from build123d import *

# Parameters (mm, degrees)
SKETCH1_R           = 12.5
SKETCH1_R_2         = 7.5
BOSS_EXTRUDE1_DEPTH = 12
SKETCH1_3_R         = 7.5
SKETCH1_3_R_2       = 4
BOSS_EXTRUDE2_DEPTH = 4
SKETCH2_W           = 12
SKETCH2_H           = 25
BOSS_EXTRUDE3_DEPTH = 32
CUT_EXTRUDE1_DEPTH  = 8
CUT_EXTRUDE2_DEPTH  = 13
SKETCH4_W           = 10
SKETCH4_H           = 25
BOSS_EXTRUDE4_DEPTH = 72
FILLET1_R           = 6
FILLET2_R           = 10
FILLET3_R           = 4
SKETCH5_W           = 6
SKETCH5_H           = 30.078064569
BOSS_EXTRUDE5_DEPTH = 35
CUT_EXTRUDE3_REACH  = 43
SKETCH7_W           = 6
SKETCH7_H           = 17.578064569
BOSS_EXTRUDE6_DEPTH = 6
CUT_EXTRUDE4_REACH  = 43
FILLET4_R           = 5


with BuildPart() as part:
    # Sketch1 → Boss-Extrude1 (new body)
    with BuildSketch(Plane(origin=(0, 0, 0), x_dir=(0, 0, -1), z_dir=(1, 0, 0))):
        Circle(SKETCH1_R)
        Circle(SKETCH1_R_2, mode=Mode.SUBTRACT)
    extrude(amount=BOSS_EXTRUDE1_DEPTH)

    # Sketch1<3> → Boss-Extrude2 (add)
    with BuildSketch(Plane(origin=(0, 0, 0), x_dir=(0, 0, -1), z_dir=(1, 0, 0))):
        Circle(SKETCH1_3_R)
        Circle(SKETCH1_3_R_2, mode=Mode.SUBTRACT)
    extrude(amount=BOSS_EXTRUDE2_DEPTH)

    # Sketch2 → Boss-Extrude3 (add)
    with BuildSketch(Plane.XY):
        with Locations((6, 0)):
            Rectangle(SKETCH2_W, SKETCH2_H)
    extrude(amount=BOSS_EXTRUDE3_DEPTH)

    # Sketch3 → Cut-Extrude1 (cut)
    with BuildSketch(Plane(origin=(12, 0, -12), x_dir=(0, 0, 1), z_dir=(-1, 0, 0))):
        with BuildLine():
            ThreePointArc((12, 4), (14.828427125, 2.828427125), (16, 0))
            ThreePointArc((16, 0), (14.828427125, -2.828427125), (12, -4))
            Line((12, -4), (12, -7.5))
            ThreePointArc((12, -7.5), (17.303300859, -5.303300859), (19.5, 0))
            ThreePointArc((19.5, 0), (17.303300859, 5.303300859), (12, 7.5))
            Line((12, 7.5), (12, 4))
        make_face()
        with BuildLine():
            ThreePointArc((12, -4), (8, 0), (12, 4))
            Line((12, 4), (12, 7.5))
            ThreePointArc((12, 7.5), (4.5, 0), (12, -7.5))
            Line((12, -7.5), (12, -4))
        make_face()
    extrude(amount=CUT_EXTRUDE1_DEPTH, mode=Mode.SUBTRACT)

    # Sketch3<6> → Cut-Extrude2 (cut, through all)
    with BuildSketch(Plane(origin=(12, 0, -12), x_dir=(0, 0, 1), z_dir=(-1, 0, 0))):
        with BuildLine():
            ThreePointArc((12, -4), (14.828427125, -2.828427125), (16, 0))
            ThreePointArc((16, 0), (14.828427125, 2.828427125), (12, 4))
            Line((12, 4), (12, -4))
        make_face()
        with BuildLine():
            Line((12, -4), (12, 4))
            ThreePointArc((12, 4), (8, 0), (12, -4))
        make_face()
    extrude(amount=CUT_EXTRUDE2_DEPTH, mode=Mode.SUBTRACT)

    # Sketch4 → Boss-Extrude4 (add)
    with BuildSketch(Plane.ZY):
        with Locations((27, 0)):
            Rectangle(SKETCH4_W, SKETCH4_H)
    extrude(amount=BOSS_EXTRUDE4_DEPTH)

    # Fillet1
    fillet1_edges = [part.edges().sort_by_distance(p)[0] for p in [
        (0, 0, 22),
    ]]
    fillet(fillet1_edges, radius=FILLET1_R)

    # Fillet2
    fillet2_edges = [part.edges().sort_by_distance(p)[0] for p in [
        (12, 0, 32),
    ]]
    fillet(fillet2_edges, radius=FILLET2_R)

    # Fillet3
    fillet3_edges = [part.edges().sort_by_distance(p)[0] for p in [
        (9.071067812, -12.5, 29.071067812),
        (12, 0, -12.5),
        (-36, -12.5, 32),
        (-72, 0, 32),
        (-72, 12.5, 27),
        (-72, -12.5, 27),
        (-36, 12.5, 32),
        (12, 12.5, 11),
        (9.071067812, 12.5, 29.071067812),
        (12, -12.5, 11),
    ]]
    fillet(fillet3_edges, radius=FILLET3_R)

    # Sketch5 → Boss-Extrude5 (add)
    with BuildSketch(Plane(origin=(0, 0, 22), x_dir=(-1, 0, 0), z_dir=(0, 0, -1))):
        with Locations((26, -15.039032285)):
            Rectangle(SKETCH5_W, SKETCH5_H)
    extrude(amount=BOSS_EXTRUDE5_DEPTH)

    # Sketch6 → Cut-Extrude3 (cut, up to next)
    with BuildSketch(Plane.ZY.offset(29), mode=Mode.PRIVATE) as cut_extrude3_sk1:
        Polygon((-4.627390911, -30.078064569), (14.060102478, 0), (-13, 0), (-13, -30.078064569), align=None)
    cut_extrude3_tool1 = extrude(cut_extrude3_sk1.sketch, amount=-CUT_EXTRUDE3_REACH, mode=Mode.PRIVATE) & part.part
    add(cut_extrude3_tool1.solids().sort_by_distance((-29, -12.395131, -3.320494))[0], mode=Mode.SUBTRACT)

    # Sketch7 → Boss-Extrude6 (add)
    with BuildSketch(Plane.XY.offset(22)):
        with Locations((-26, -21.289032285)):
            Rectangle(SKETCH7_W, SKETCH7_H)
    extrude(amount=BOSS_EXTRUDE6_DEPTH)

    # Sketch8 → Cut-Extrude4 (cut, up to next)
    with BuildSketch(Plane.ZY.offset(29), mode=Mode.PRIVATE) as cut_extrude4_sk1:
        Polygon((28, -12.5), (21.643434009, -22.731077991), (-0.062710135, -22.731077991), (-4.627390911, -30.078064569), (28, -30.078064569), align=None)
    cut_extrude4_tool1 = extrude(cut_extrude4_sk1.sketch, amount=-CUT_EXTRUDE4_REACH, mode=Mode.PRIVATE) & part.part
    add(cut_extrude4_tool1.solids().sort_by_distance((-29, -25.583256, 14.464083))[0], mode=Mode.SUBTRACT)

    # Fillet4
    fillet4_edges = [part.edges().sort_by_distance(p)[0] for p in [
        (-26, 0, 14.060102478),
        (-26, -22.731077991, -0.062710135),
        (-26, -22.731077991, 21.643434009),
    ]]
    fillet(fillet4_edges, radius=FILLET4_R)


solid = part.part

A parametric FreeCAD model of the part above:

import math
import FreeCAD as App
import Part
import Sketcher

V = App.Vector


def edges_at(feature, points):
    """Names of the edges that pass closest to the given points."""
    edges = feature.Shape.Edges
    near = lambda p: min(range(len(edges)), key=lambda i: edges[i].distToShape(Part.Vertex(*p))[0])
    return sorted({f"Edge{near(p) + 1}" for p in points})


def add_polygon(sketch, points):
    """Adds a closed chain of lines whose ends are joined by coincident constraints."""
    first, n = sketch.GeometryCount, len(points)
    for a, b in zip(points, points[1:] + points[:1]):
        sketch.addGeometry(Part.LineSegment(App.Vector(*a, 0), App.Vector(*b, 0)), False)
    for i in range(n):
        sketch.addConstraint(Sketcher.Constraint("Coincident", first + i, 2, first + (i + 1) % n, 1))

doc = App.newDocument("Part")
body = doc.addObject("PartDesign::Body", "Body")

# Sketch on YZ plane
sketch1 = body.newObject("Sketcher::SketchObject", "Sketch")
sketch1.AttachmentSupport = (doc.getObject("YZ_Plane"), [""])
sketch1.MapMode = "FlatFace"
sketch1.addGeometry([
    Part.Circle(V(0, 0, 0), V(0, 0, 1), 12),
    Part.Circle(V(0, 0, 0), V(0, 0, 1), 8),
], False)
sketch1.addConstraint([
    Sketcher.Constraint("Coincident", 0, 3, -1, 1),
    Sketcher.Constraint("Coincident", 1, 3, -1, 1),
    Sketcher.Constraint("Diameter", 0, 25.0),
    Sketcher.Constraint("Diameter", 1, 15.0),
])
pad1 = body.newObject("PartDesign::Pad", "Pad")
pad1.Profile = sketch1
pad1.Length = 12

# Sketch on YZ plane
sketch2 = body.newObject("Sketcher::SketchObject", "Sketch001")
sketch2.AttachmentSupport = (doc.getObject("YZ_Plane"), [""])
sketch2.MapMode = "FlatFace"
sketch2.addGeometry([
    Part.Circle(V(0, 0, 0), V(0, 0, 1), 7.5),
    Part.Circle(V(0, 0, 0), V(0, 0, 1), 4),
], False)
sketch2.addConstraint([
    Sketcher.Constraint("Coincident", 0, 3, -1, 1),
    Sketcher.Constraint("Coincident", 1, 3, -1, 1),
    Sketcher.Constraint("Diameter", 0, 15.0),
    Sketcher.Constraint("Diameter", 1, 8.0),
])
pad2 = body.newObject("PartDesign::Pad", "Pad001")
pad2.Profile = sketch2
pad2.Length = 4

# Sketch on XY plane
sketch3 = body.newObject("Sketcher::SketchObject", "Sketch002")
sketch3.AttachmentSupport = (doc.getObject("XY_Plane"), [""])
sketch3.MapMode = "FlatFace"
add_polygon(sketch3, [(0, 12), (0, -12), (12, -12), (12, 12)])  # lines 0-3
sketch3.addConstraint([
    Sketcher.Constraint("Vertical", 0),
    Sketcher.Constraint("Horizontal", 1),
    Sketcher.Constraint("Vertical", 2),
    Sketcher.Constraint("Horizontal", 3),
    Sketcher.Constraint("Symmetric", 0, 2, 3, 2, -1, 1),
    Sketcher.Constraint("DistanceX", 1, 1, 1, 2, 12.0),
    Sketcher.Constraint("DistanceY", 0, 2, 0, 1, 25.0),
])
pad3 = body.newObject("PartDesign::Pad", "Pad002")
pad3.Profile = sketch3
pad3.Length = 32

# Sketch on YZ plane
sketch4 = body.newObject("Sketcher::SketchObject", "Sketch003")
sketch4.AttachmentSupport = (doc.getObject("YZ_Plane"), [""])
sketch4.MapMode = "FlatFace"
sketch4.AttachmentOffset = App.Placement(V(0, 0, 12), App.Rotation())
sketch4.addGeometry([
    Part.ArcOfCircle(Part.Circle(V(0, 0, 0), V(0, 0, 1), 7.5), math.radians(90), math.radians(180)),  # 0
    Part.ArcOfCircle(Part.Circle(V(0, 0, 0), V(0, 0, 1), 7.5), math.radians(0), math.radians(90)),  # 1
    Part.ArcOfCircle(Part.Circle(V(0, 0, 0), V(0, 0, 1), 7.5), math.radians(180), math.radians(360)),  # 2
    Part.ArcOfCircle(Part.Circle(V(0, 0, 0), V(0, 0, 1), 4), math.radians(0), math.radians(90)),  # 3
    Part.ArcOfCircle(Part.Circle(V(0, 0, 0), V(0, 0, 1), 4), math.radians(90), math.radians(180)),  # 4
    Part.ArcOfCircle(Part.Circle(V(0, 0, 0), V(0, 0, 1), 4), math.radians(180), math.radians(360)),  # 5
], False)
sketch4.addConstraint([
    Sketcher.Constraint("Tangent", 0, 1, 1, 2),
    Sketcher.Constraint("Tangent", 1, 1, 2, 2),
    Sketcher.Constraint("Tangent", 2, 1, 0, 2),
    Sketcher.Constraint("Tangent", 3, 2, 4, 1),
    Sketcher.Constraint("Tangent", 4, 2, 5, 1),
    Sketcher.Constraint("Tangent", 5, 2, 3, 1),
    Sketcher.Constraint("Coincident", 0, 3, -1, 1),
    Sketcher.Constraint("Coincident", 3, 3, -1, 1),
    Sketcher.Constraint("PointOnObject", 0, 1, -2),
    Sketcher.Constraint("PointOnObject", 1, 1, -1),
    Sketcher.Constraint("PointOnObject", 2, 1, -1),
    Sketcher.Constraint("PointOnObject", 3, 2, -2),
    Sketcher.Constraint("PointOnObject", 4, 2, -1),
    Sketcher.Constraint("PointOnObject", 5, 2, -1),
    Sketcher.Constraint("Radius", 3, 4.0),
    Sketcher.Constraint("Radius", 0, 7.5),
])
pocket1 = body.newObject("PartDesign::Pocket", "Pocket")
pocket1.Profile = sketch4
pocket1.Length = 8

# Sketch on YZ plane
sketch5 = body.newObject("Sketcher::SketchObject", "Sketch004")
sketch5.AttachmentSupport = (doc.getObject("YZ_Plane"), [""])
sketch5.MapMode = "FlatFace"
sketch5.AttachmentOffset = App.Placement(V(0, 0, 12), App.Rotation())
sketch5.addGeometry([
    Part.ArcOfCircle(Part.Circle(V(0, 0, 0), V(0, 0, 1), 4), math.radians(90), math.radians(180)),
    Part.ArcOfCircle(Part.Circle(V(0, 0, 0), V(0, 0, 1), 4), math.radians(0), math.radians(90)),
    Part.ArcOfCircle(Part.Circle(V(0, 0, 0), V(0, 0, 1), 4), math.radians(180), math.radians(360)),
], False)
sketch5.addConstraint([
    Sketcher.Constraint("Tangent", 0, 1, 1, 2),
    Sketcher.Constraint("Tangent", 1, 1, 2, 2),
    Sketcher.Constraint("Tangent", 2, 1, 0, 2),
    Sketcher.Constraint("Coincident", 0, 3, -1, 1),
    Sketcher.Constraint("PointOnObject", 0, 1, -2),
    Sketcher.Constraint("PointOnObject", 1, 1, -1),
    Sketcher.Constraint("PointOnObject", 2, 1, -1),
    Sketcher.Constraint("Radius", 0, 4.0),
])
pocket2 = body.newObject("PartDesign::Pocket", "Pocket001")
pocket2.Profile = sketch5
pocket2.Type = "ThroughAll"

# Sketch on YZ plane
sketch6 = body.newObject("Sketcher::SketchObject", "Sketch005")
sketch6.AttachmentSupport = (doc.getObject("YZ_Plane"), [""])
sketch6.MapMode = "FlatFace"
add_polygon(sketch6, [(12, 22), (-12, 22), (-12, 32), (12, 32)])  # lines 0-3
sketch6.addConstraint([
    Sketcher.Constraint("Horizontal", 0),
    Sketcher.Constraint("Vertical", 1),
    Sketcher.Constraint("Horizontal", 2),
    Sketcher.Constraint("Vertical", 3),
    Sketcher.Constraint("DistanceX", 0, 2, 0, 1, 25.0),
    Sketcher.Constraint("DistanceY", 1, 1, 1, 2, 10.0),
    Sketcher.Constraint("DistanceY", -1, 1, 0, 2, 22.0),
    Sketcher.Constraint("DistanceX", 0, 2, -1, 1, 12.5),
])
pad4 = body.newObject("PartDesign::Pad", "Pad003")
pad4.Profile = sketch6
pad4.Length = 72
pad4.Reversed = True
doc.recompute()

fillet = body.newObject("PartDesign::Fillet", "Fillet")
fillet.Base = (pad4, edges_at(pad4, [(0, 0, 22)]))
fillet.Radius = 6
doc.recompute()

fillet2 = body.newObject("PartDesign::Fillet", "Fillet001")
fillet2.Base = (fillet, edges_at(fillet, [(12, 0, 32)]))
fillet2.Radius = 10
doc.recompute()

fillet3 = body.newObject("PartDesign::Fillet", "Fillet002")
fillet3.Base = (fillet2, edges_at(fillet2, [
    (9.071, -12.5, 29.071),
    (12, 0, -12.5),
    (-35, -12.5, 32),
    (-72, 0, 32),
    (-72, 12.5, 27),
    (-72, -12.5, 27),
    (-35, 12.5, 32),
    (12, 12.5, 11),
    (9.071, 12.5, 29.071),
    (12, -12.5, 11),
]))
fillet3.Radius = 4

# Sketch on XY plane
sketch7 = body.newObject("Sketcher::SketchObject", "Sketch006")
sketch7.AttachmentSupport = (doc.getObject("XY_Plane"), [""])
sketch7.MapMode = "FlatFace"
sketch7.AttachmentOffset = App.Placement(V(0, 0, 22), App.Rotation())
add_polygon(sketch7, [(-23, 0), (-23, -30), (-29, -30), (-29, 0)])  # lines 0-3
sketch7.addConstraint([
    Sketcher.Constraint("Vertical", 0),
    Sketcher.Constraint("Horizontal", 1),
    Sketcher.Constraint("Vertical", 2),
    Sketcher.Constraint("Horizontal", 3),
    Sketcher.Constraint("PointOnObject", 2, 2, -1),
    Sketcher.Constraint("DistanceX", 1, 2, 1, 1, 6.0),
    Sketcher.Constraint("DistanceX", 0, 2, -1, 1, 23.0),
    Sketcher.Constraint("DistanceY", 0, 2, 0, 1, 30.078065),
])
pad5 = body.newObject("PartDesign::Pad", "Pad004")
pad5.Profile = sketch7
pad5.Length = 35
pad5.Reversed = True

# Sketch on YZ plane
sketch8 = body.newObject("Sketcher::SketchObject", "Sketch007")
sketch8.AttachmentSupport = (doc.getObject("YZ_Plane"), [""])
sketch8.MapMode = "FlatFace"
sketch8.AttachmentOffset = App.Placement(V(0, 0, -29), App.Rotation())
add_polygon(sketch8, [(-30, -5), (0, 14), (0, -13), (-30, -13)])  # lines 0-3
sketch8.addConstraint([
    Sketcher.Constraint("Vertical", 1),
    Sketcher.Constraint("Horizontal", 2),
    Sketcher.Constraint("Vertical", 3),
    Sketcher.Constraint("PointOnObject", 0, 2, -2),
    Sketcher.Constraint("DistanceY", 1, 2, -1, 1, 13.0),
    Sketcher.Constraint("DistanceY", 3, 1, 3, 2, 8.372609),
    Sketcher.Constraint("DistanceX", 2, 2, 2, 1, 30.078065),
    Sketcher.Constraint("DistanceY", 1, 2, 1, 1, 27.060102),
])
pocket3 = body.newObject("PartDesign::Pocket", "Pocket002")
pocket3.Profile = sketch8
pocket3.Type = "UpToFirst"
pocket3.Reversed = True

# Sketch on XY plane
sketch9 = body.newObject("Sketcher::SketchObject", "Sketch008")
sketch9.AttachmentSupport = (doc.getObject("XY_Plane"), [""])
sketch9.MapMode = "FlatFace"
sketch9.AttachmentOffset = App.Placement(V(0, 0, 22), App.Rotation())
add_polygon(sketch9, [(-29, -13), (-29, -30), (-23, -30), (-23, -13)])  # lines 0-3
sketch9.addConstraint([
    Sketcher.Constraint("Vertical", 0),
    Sketcher.Constraint("Horizontal", 1),
    Sketcher.Constraint("Vertical", 2),
    Sketcher.Constraint("Horizontal", 3),
    Sketcher.Constraint("DistanceX", 1, 1, 1, 2, 6.0),
    Sketcher.Constraint("DistanceX", 0, 2, -1, 1, 29.0),
    Sketcher.Constraint("DistanceY", 2, 2, -1, 1, 12.5),
    Sketcher.Constraint("DistanceY", 0, 2, 0, 1, 17.578065),
])
pad6 = body.newObject("PartDesign::Pad", "Pad005")
pad6.Profile = sketch9
pad6.Length = 6

# Sketch on YZ plane
sketch10 = body.newObject("Sketcher::SketchObject", "Sketch009")
sketch10.AttachmentSupport = (doc.getObject("YZ_Plane"), [""])
sketch10.MapMode = "FlatFace"
sketch10.AttachmentOffset = App.Placement(V(0, 0, -29), App.Rotation())
add_polygon(sketch10, [(-12, 28), (-23, 22), (-23, 0), (-30, -5), (-30, 28)])  # lines 0-4
sketch10.addConstraint([
    Sketcher.Constraint("Vertical", 1),
    Sketcher.Constraint("Vertical", 3),
    Sketcher.Constraint("Horizontal", 4),
    Sketcher.Constraint("Parallel", 0, 2),
    Sketcher.Constraint("DistanceY", -1, 1, 3, 2, 28.0),
    Sketcher.Constraint("DistanceX", 4, 2, -1, 1, 12.5),
    Sketcher.Constraint("DistanceY", 3, 1, 3, 2, 32.627391),
    Sketcher.Constraint("Distance", 2, 8.649539),
    Sketcher.Constraint("DistanceX", 4, 1, 4, 2, 17.578065),
    Sketcher.Constraint("DistanceY", 1, 2, 1, 1, 21.706144),
])
pocket4 = body.newObject("PartDesign::Pocket", "Pocket003")
pocket4.Profile = sketch10
pocket4.Type = "UpToFirst"
pocket4.Reversed = True
doc.recompute()

fillet4 = body.newObject("PartDesign::Fillet", "Fillet003")
fillet4.Base = (pocket4, edges_at(pocket4, [(-26, 0, 14.06), (-26, -22.731, -0.063), (-26, -22.731, 21.643)]))
fillet4.Radius = 5

doc.recompute()
